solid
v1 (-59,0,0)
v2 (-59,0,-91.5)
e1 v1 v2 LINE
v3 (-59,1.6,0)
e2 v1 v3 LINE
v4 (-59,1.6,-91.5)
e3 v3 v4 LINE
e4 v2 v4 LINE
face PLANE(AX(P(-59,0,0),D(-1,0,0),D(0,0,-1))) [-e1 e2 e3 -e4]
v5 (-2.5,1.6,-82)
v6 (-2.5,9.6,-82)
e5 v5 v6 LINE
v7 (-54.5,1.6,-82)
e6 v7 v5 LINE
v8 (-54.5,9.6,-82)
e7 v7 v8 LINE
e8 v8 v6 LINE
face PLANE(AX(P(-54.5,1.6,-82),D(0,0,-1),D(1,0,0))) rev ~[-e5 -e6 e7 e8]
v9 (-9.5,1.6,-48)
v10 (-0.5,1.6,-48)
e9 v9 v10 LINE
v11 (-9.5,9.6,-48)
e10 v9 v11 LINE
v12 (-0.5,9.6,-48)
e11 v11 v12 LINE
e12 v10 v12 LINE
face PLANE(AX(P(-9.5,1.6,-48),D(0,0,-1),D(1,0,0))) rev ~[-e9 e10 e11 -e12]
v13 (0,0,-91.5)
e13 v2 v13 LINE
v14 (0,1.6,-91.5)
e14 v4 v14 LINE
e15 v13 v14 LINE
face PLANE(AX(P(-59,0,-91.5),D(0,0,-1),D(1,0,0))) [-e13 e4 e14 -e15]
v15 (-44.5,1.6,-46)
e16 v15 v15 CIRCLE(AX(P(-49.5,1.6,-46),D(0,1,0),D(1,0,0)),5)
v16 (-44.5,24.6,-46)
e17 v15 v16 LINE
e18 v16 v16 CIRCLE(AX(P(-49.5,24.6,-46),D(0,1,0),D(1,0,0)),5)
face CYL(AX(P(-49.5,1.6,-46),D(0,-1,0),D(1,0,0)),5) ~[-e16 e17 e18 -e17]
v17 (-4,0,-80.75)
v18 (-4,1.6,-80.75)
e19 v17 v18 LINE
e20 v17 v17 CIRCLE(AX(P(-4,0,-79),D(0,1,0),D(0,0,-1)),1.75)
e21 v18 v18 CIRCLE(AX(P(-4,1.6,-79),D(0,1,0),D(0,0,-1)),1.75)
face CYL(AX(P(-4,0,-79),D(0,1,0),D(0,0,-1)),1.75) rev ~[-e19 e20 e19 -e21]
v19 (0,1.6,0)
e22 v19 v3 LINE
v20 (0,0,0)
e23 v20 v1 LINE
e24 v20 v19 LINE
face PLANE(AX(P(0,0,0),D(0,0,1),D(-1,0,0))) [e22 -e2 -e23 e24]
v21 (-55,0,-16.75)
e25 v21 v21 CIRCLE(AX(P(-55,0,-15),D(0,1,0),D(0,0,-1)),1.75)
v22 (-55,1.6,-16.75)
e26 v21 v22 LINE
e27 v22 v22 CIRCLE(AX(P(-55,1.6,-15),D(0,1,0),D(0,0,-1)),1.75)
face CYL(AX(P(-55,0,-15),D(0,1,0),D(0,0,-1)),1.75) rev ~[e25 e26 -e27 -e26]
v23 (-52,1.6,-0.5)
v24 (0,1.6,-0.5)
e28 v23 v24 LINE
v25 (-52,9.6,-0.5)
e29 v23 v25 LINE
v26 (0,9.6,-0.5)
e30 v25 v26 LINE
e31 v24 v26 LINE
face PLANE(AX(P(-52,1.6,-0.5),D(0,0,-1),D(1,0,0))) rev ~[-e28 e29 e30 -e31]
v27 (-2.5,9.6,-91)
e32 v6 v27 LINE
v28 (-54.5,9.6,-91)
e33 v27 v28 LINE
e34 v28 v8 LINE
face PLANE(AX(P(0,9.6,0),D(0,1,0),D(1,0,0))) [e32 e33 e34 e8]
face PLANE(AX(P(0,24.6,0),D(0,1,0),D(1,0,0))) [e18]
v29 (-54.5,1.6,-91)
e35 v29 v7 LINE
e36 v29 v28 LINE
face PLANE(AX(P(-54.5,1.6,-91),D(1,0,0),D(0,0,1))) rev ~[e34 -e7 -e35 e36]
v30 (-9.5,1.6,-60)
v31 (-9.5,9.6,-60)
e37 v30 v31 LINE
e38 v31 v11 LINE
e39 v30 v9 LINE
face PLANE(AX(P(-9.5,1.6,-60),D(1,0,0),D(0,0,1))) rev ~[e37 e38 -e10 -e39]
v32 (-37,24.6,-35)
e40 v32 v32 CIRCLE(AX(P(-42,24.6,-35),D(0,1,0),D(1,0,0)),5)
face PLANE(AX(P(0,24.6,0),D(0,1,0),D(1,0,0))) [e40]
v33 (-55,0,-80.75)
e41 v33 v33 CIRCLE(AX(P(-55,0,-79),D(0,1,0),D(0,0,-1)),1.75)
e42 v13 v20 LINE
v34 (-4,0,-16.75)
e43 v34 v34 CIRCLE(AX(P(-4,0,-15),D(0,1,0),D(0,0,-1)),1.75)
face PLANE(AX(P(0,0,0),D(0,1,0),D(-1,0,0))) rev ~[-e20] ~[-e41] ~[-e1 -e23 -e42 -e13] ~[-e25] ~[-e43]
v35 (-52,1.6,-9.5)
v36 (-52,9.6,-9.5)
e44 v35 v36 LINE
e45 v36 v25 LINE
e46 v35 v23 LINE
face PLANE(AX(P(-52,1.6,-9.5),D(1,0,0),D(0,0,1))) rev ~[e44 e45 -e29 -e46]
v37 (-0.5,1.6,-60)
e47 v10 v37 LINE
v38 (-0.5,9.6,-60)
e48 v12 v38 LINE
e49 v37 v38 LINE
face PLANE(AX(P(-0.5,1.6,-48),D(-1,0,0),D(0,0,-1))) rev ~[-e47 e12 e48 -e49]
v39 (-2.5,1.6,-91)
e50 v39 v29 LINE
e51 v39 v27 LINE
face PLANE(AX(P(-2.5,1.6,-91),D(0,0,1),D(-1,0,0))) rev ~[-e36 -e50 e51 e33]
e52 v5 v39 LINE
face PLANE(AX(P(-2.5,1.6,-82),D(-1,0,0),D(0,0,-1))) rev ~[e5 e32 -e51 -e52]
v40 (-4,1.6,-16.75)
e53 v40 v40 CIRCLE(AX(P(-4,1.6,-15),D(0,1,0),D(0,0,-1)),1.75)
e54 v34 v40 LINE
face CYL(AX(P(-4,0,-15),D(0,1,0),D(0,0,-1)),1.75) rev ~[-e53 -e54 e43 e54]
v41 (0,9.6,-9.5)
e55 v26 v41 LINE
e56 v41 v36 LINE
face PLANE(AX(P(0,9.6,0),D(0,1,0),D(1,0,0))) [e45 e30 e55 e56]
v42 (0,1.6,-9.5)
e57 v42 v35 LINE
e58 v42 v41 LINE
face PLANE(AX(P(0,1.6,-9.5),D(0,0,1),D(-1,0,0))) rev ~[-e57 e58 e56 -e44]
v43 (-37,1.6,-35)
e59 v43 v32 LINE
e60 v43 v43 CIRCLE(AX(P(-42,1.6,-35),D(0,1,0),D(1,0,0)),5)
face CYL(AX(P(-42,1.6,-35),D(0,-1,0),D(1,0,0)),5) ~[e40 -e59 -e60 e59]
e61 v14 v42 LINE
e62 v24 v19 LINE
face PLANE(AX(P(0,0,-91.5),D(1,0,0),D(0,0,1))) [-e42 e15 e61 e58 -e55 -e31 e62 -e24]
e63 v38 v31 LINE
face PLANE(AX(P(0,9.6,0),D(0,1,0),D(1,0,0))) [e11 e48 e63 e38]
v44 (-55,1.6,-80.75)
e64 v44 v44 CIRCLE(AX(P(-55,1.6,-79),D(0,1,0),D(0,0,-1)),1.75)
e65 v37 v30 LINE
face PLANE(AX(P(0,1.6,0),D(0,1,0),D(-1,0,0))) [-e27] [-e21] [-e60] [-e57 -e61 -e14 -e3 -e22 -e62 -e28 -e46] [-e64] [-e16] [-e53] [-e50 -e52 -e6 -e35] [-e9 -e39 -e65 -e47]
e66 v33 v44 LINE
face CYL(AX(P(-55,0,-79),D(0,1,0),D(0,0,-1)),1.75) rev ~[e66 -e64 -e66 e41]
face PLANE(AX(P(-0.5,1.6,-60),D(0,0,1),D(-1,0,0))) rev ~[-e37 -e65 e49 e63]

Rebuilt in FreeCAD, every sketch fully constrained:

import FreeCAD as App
import Part
import Sketcher

V = App.Vector


def add_polygon(sketch, points):
    """Adds a closed chain of lines whose ends are joined by coincident constraints."""
    first, n = sketch.GeometryCount, len(points)
    for a, b in zip(points, points[1:] + points[:1]):
        sketch.addGeometry(Part.LineSegment(App.Vector(*a, 0), App.Vector(*b, 0)), False)
    for i in range(n):
        sketch.addConstraint(Sketcher.Constraint("Coincident", first + i, 2, first + (i + 1) % n, 1))

doc = App.newDocument("Part")
body = doc.addObject("PartDesign::Body", "Body")

# Sketch on XZ plane
sketch1 = body.newObject("Sketcher::SketchObject", "Sketch")
sketch1.AttachmentSupport = (doc.getObject("XZ_Plane"), [""])
sketch1.MapMode = "FlatFace"
add_polygon(sketch1, [(-59, 0), (0, 0), (0, -92), (-59, -92)])  # lines 0-3
sketch1.addConstraint(Sketcher.Constraint("Horizontal", 0))
sketch1.addConstraint(Sketcher.Constraint("Vertical", 1))
sketch1.addConstraint(Sketcher.Constraint("Horizontal", 2))
sketch1.addConstraint(Sketcher.Constraint("Vertical", 3))
sketch1.addConstraint(Sketcher.Constraint("Coincident", 0, 2, -1, 1))
sketch1.addConstraint(Sketcher.Constraint("DistanceX", 0, 1, 0, 2, 59.0))
sketch1.addConstraint(Sketcher.Constraint("DistanceY", 1, 2, 1, 1, 91.5))
pad1 = body.newObject("PartDesign::Pad", "Pad")
pad1.Profile = sketch1
pad1.Length = 1.6
pad1.Reversed = True

# Sketch on XZ plane
sketch2 = body.newObject("Sketcher::SketchObject", "Sketch001")
sketch2.AttachmentSupport = (doc.getObject("XZ_Plane"), [""])
sketch2.MapMode = "FlatFace"
sketch2.addGeometry(Part.Circle(V(-55, -15, 0), V(0, 0, 1), 1.8), False)
sketch2.addGeometry(Part.Circle(V(-55, -79, 0), V(0, 0, 1), 1.8), False)
sketch2.addGeometry(Part.Circle(V(-4, -79, 0), V(0, 0, 1), 1.8), False)
sketch2.addGeometry(Part.Circle(V(-4, -15, 0), V(0, 0, 1), 1.8), False)
sketch2.addConstraint(Sketcher.Constraint("Equal", 0, 1))
sketch2.addConstraint(Sketcher.Constraint("Equal", 1, 2))
sketch2.addConstraint(Sketcher.Constraint("Equal", 2, 3))
sketch2.addConstraint(Sketcher.Constraint("Horizontal", 1, 3, 2, 3))
sketch2.addConstraint(Sketcher.Constraint("Horizontal", 0, 3, 3, 3))
sketch2.addConstraint(Sketcher.Constraint("Vertical", 0, 3, 1, 3))
sketch2.addConstraint(Sketcher.Constraint("Vertical", 2, 3, 3, 3))
sketch2.addConstraint(Sketcher.Constraint("Diameter", 0, 3.5))
sketch2.addConstraint(Sketcher.Constraint("DistanceX", 0, 3, -1, 1, 55.0))
sketch2.addConstraint(Sketcher.Constraint("DistanceY", 0, 3, -1, 1, 15.0))
sketch2.addConstraint(Sketcher.Constraint("DistanceY", 1, 3, -1, 1, 79.0))
sketch2.addConstraint(Sketcher.Constraint("DistanceX", 2, 3, -1, 1, 4.0))
doc.recompute()
hole = body.newObject("PartDesign::Hole", "Hole")
hole.Profile = sketch2
hole.ThreadType = "None"
hole.Diameter = 3.5
hole.DepthType = "ThroughAll"

# Sketch on XZ plane
sketch3 = body.newObject("Sketcher::SketchObject", "Sketch002")
sketch3.AttachmentSupport = (doc.getObject("XZ_Plane"), [""])
sketch3.MapMode = "FlatFace"
sketch3.AttachmentOffset = App.Placement(V(0, 0, -1.6), App.Rotation())
sketch3.addGeometry(Part.Circle(V(-50, -46, 0), V(0, 0, 1), 5), False)
sketch3.addGeometry(Part.Circle(V(-42, -35, 0), V(0, 0, 1), 5), False)
sketch3.addConstraint(Sketcher.Constraint("Equal", 0, 1))
sketch3.addConstraint(Sketcher.Constraint("Diameter", 0, 10.0))
sketch3.addConstraint(Sketcher.Constraint("DistanceY", 0, 3, -1, 1, 46.0))
sketch3.addConstraint(Sketcher.Constraint("DistanceY", 1, 3, -1, 1, 35.0))
sketch3.addConstraint(Sketcher.Constraint("DistanceX", 1, 3, -1, 1, 42.0))
sketch3.addConstraint(Sketcher.Constraint("DistanceX", 0, 3, -1, 1, 49.5))
pad2 = body.newObject("PartDesign::Pad", "Pad001")
pad2.Profile = sketch3
pad2.Length = 23
pad2.Reversed = True

# Sketch on XZ plane
sketch4 = body.newObject("Sketcher::SketchObject", "Sketch003")
sketch4.AttachmentSupport = (doc.getObject("XZ_Plane"), [""])
sketch4.MapMode = "FlatFace"
sketch4.AttachmentOffset = App.Placement(V(0, 0, -1.6), App.Rotation())
add_polygon(sketch4, [(-52, -10), (-52, 0), (0, 0), (0, -10)])  # lines 0-3
add_polygon(sketch4, [(-54, -91), (-54, -82), (-2, -82), (-2, -91)])  # lines 4-7
add_polygon(sketch4, [(-10, -60), (-10, -48), (0, -48), (0, -60)])  # lines 8-11
sketch4.addConstraint(Sketcher.Constraint("Vertical", 0))
sketch4.addConstraint(Sketcher.Constraint("Horizontal", 1))
sketch4.addConstraint(Sketcher.Constraint("Vertical", 2))
sketch4.addConstraint(Sketcher.Constraint("Horizontal", 3))
sketch4.addConstraint(Sketcher.Constraint("Vertical", 4))
sketch4.addConstraint(Sketcher.Constraint("Horizontal", 5))
sketch4.addConstraint(Sketcher.Constraint("Vertical", 6))
sketch4.addConstraint(Sketcher.Constraint("Horizontal", 7))
sketch4.addConstraint(Sketcher.Constraint("Vertical", 8))
sketch4.addConstraint(Sketcher.Constraint("Horizontal", 9))
sketch4.addConstraint(Sketcher.Constraint("Vertical", 10))
sketch4.addConstraint(Sketcher.Constraint("Horizontal", 11))
sketch4.addConstraint(Sketcher.Constraint("PointOnObject", 1, 2, -2))
sketch4.addConstraint(Sketcher.Constraint("Equal", 3, 5))
sketch4.addConstraint(Sketcher.Constraint("Equal", 11, 0))
sketch4.addConstraint(Sketcher.Constraint("Equal", 2, 4))
sketch4.addConstraint(Sketcher.Constraint("DistanceX", 1, 1, 1, 2, 52.0))
sketch4.addConstraint(Sketcher.Constraint("DistanceX", 9, 1, 9, 2, 9.0))
sketch4.addConstraint(Sketcher.Constraint("DistanceY", 8, 1, 8, 2, 12.0))
sketch4.addConstraint(Sketcher.Constraint("DistanceY", 8, 2, -1, 1, 48.0))
sketch4.addConstraint(Sketcher.Constraint("DistanceX", 8, 2, 5, 2, 7.0))
sketch4.addConstraint(Sketcher.Constraint("DistanceY", 2, 2, -1, 1, 9.5))
sketch4.addConstraint(Sketcher.Constraint("DistanceX", 8, 2, -1, 1, 9.5))
sketch4.addConstraint(Sketcher.Constraint("DistanceY", 4, 2, -1, 1, 82.0))
pad3 = body.newObject("PartDesign::Pad", "Pad002")
pad3.Profile = sketch4
pad3.Length = 8
pad3.Reversed = True

doc.recompute()
